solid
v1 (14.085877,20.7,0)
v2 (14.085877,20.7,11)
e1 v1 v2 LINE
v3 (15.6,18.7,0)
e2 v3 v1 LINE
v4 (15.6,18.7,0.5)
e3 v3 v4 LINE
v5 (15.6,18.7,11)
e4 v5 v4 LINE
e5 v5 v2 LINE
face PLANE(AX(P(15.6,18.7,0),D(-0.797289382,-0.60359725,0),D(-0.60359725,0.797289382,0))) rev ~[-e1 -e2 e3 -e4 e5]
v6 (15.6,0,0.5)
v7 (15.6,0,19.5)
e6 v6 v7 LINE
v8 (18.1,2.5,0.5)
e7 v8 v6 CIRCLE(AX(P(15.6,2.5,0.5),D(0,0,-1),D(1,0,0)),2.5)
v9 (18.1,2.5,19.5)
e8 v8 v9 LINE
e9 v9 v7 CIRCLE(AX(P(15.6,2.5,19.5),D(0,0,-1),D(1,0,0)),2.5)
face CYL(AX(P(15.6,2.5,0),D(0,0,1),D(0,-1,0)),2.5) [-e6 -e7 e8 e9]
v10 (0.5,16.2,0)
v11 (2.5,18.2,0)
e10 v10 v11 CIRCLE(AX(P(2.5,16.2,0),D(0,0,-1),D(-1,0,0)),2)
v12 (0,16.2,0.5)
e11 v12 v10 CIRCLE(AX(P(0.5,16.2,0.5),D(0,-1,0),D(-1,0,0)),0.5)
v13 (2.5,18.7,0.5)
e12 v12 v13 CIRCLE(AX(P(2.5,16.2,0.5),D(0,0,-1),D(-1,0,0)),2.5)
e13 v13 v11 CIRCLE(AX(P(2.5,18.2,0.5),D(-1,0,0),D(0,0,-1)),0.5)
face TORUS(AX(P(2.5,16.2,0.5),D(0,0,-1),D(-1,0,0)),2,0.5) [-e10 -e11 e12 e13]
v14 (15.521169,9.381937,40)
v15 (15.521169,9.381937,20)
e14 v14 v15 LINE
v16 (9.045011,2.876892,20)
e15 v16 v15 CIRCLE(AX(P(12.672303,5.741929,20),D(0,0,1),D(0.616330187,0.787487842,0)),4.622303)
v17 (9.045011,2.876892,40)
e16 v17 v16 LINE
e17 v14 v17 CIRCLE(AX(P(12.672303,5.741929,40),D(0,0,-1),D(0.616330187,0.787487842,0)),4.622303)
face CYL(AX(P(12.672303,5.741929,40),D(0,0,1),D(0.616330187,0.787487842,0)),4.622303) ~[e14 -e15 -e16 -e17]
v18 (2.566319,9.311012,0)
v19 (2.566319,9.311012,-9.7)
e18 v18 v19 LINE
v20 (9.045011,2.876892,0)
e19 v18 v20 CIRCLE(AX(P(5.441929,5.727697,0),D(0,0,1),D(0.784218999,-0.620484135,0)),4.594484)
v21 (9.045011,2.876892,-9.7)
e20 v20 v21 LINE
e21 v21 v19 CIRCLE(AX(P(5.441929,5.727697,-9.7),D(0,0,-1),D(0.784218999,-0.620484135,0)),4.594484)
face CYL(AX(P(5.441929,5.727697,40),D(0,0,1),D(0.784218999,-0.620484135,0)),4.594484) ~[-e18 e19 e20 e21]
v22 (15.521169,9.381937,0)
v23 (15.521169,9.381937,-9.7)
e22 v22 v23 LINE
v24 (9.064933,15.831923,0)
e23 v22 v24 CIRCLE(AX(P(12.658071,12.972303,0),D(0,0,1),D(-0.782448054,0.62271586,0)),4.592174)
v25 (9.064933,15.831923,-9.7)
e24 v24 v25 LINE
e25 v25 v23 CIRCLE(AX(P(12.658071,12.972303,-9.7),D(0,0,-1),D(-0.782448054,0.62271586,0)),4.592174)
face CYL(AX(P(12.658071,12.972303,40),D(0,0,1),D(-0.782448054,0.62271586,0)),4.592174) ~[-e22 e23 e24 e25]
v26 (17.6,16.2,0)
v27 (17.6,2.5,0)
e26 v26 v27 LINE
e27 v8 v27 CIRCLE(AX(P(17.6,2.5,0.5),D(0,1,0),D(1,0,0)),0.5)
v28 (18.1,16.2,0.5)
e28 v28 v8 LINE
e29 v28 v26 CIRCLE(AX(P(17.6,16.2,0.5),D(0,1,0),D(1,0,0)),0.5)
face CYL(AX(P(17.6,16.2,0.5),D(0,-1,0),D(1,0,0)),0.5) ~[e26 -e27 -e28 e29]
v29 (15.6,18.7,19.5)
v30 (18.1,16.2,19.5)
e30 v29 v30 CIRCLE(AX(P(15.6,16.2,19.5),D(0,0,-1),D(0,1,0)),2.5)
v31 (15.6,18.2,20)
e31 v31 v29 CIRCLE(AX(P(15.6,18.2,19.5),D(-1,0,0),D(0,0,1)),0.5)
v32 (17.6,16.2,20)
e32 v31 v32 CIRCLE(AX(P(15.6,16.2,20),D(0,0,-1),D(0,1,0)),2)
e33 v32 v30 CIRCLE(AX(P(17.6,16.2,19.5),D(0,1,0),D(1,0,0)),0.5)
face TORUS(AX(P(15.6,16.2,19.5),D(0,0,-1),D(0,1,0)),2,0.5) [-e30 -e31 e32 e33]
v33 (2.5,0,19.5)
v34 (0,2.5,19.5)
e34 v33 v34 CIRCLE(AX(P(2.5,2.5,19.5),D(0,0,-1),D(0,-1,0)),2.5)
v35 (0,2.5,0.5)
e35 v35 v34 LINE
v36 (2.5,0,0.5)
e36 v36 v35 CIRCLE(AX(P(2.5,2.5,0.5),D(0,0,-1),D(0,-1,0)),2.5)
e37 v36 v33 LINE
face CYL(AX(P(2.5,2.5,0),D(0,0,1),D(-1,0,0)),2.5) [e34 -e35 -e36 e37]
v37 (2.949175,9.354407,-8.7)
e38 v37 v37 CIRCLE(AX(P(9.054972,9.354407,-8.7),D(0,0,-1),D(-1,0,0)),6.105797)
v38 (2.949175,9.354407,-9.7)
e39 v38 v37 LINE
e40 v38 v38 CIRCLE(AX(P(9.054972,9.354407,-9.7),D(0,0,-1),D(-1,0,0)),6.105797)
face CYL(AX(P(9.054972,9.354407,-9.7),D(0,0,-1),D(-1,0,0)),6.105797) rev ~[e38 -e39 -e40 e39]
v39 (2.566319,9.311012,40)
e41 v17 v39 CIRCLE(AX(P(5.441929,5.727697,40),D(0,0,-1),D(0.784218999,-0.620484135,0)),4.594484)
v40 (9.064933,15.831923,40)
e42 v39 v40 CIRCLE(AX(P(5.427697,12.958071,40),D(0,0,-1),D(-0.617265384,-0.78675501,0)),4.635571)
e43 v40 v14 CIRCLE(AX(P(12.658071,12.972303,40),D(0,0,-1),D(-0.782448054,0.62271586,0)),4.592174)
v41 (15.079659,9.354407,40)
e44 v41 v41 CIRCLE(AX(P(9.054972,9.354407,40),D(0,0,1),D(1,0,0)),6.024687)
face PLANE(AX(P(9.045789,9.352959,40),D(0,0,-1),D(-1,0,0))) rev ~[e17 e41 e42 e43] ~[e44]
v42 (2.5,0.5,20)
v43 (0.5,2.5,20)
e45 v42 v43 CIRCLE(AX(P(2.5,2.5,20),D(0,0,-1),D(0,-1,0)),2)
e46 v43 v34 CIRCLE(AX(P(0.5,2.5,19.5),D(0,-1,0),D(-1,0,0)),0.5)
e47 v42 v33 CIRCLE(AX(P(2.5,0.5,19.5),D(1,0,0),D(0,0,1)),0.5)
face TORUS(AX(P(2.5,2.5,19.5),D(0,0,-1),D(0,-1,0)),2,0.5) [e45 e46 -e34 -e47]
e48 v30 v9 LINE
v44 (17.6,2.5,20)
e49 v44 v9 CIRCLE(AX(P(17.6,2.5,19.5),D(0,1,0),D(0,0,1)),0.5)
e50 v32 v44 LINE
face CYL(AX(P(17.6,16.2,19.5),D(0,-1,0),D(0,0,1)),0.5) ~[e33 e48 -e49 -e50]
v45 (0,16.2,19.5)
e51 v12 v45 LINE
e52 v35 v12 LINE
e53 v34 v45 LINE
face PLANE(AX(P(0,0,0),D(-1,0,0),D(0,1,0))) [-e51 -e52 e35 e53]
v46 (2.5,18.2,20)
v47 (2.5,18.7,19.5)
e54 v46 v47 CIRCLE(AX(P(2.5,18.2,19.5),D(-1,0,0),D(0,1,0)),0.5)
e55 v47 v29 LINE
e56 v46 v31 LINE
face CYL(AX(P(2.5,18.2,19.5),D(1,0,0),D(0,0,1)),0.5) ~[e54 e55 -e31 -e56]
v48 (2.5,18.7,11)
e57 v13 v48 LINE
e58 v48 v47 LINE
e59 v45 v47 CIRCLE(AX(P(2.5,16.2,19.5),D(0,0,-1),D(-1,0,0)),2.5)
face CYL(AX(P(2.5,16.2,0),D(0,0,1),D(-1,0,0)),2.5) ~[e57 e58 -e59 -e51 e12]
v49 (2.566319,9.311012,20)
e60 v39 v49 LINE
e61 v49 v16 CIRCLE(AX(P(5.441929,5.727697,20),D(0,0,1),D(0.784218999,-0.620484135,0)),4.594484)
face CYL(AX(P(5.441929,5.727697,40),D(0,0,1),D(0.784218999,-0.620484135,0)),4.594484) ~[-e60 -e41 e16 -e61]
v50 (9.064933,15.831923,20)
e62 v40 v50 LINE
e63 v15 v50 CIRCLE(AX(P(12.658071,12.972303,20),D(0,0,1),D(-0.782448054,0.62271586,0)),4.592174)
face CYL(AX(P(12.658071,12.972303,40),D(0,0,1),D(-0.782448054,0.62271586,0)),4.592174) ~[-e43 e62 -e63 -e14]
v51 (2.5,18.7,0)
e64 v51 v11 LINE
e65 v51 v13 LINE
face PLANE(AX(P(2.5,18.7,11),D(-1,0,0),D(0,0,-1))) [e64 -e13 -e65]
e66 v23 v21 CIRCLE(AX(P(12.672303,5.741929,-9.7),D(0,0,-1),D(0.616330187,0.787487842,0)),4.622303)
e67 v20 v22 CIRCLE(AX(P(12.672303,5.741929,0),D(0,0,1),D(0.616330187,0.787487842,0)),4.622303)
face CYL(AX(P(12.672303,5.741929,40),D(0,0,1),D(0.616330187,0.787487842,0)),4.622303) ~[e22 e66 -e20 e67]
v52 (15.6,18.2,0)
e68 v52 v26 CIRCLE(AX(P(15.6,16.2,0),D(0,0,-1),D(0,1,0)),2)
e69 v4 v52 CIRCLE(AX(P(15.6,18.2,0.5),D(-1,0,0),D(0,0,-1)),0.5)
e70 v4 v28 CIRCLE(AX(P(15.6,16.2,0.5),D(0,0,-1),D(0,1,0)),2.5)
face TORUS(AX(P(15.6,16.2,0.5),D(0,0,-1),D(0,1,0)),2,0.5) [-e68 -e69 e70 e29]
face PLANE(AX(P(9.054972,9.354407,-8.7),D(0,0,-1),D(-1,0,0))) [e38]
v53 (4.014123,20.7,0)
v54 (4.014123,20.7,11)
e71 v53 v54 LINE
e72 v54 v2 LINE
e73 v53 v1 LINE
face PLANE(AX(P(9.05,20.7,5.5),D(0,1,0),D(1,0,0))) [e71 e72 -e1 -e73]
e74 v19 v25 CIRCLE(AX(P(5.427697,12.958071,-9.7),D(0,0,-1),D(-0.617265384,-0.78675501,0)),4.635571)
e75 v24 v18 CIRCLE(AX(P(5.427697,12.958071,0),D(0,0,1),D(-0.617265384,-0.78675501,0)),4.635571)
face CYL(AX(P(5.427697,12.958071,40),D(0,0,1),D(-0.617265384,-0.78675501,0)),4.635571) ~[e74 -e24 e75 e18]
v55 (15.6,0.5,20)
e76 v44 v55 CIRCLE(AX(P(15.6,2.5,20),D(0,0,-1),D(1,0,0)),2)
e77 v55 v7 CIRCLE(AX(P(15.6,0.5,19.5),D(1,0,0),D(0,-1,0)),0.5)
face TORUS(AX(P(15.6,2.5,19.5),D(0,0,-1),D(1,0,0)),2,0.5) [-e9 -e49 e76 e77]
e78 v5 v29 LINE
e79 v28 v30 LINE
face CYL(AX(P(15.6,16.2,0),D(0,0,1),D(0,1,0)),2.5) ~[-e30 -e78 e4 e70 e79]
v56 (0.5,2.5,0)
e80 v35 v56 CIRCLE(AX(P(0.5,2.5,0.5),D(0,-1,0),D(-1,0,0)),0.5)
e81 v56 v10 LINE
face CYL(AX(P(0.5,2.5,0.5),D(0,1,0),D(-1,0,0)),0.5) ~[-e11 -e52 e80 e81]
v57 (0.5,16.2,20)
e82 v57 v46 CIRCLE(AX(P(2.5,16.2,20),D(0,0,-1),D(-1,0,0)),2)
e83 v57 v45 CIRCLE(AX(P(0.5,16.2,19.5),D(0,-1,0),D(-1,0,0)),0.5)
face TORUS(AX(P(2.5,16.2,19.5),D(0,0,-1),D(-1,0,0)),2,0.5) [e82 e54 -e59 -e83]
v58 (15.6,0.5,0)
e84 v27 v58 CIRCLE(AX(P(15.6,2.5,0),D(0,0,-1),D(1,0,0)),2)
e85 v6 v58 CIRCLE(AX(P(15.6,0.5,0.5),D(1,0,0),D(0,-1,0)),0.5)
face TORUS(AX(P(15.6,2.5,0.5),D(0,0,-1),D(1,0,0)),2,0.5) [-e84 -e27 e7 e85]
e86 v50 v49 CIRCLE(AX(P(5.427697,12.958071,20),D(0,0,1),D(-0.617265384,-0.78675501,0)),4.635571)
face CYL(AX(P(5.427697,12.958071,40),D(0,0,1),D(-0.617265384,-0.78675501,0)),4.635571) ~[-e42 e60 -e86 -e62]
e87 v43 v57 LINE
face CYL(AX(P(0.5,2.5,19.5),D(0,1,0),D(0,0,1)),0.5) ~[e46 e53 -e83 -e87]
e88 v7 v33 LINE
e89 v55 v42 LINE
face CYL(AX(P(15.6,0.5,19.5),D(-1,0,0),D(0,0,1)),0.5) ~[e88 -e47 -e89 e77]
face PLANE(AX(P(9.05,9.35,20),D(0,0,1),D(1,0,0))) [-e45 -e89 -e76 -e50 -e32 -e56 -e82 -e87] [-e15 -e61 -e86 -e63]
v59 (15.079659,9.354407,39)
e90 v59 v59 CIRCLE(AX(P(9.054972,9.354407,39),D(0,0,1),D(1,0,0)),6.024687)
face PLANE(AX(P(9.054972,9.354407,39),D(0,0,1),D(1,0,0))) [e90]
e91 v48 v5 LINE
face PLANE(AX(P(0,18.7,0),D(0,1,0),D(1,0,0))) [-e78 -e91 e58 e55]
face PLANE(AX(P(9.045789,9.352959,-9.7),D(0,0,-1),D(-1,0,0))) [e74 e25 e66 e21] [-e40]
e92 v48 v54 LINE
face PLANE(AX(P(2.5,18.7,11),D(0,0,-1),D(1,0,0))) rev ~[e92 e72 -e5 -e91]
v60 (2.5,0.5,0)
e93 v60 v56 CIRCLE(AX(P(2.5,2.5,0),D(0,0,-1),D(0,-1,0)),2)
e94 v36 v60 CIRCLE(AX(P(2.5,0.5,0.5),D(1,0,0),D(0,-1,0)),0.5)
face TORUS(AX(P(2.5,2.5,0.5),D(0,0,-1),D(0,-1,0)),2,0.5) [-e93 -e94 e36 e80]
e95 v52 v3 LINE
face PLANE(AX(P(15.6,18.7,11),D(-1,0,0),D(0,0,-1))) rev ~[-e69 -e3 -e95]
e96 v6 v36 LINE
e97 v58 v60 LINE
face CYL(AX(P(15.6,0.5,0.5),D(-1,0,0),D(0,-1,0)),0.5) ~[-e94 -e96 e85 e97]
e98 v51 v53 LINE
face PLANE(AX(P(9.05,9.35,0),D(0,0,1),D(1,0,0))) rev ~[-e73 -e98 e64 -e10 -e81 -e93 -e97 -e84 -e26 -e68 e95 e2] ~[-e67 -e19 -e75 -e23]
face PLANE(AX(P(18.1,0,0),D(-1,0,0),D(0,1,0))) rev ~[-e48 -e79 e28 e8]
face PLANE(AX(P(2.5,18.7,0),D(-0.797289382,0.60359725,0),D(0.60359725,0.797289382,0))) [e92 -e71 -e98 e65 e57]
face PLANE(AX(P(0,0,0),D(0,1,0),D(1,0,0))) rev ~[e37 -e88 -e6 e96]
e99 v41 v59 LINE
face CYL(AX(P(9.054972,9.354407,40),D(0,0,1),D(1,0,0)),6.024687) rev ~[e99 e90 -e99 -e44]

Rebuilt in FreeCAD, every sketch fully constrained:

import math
import FreeCAD as App
import Part
import Sketcher


def edges_at(feature, points):
    """Names of the edges that pass closest to the given points."""
    edges = feature.Shape.Edges
    near = lambda p: min(range(len(edges)), key=lambda i: edges[i].distToShape(Part.Vertex(*p))[0])
    return sorted({f"Edge{near(p) + 1}" for p in points})


def add_polygon(sketch, points):
    """Adds a closed chain of lines whose ends are joined by coincident constraints."""
    first, n = sketch.GeometryCount, len(points)
    for a, b in zip(points, points[1:] + points[:1]):
        sketch.addGeometry(Part.LineSegment(App.Vector(*a, 0), App.Vector(*b, 0)), False)
    for i in range(n):
        sketch.addConstraint(Sketcher.Constraint("Coincident", first + i, 2, first + (i + 1) % n, 1))

doc = App.newDocument("Part")
body = doc.addObject("PartDesign::Body", "Body")

sketch1 = body.newObject("Sketcher::SketchObject", "Sketch")
sketch1.AttachmentSupport = (doc.getObject("XY_Plane"), [""])
sketch1.MapMode = "FlatFace"
add_polygon(sketch1, [(0, 19), (0, 0), (18, 0), (18, 19)])
sketch1.addConstraint([
    Sketcher.Constraint("Vertical", 0),
    Sketcher.Constraint("Horizontal", 1),
    Sketcher.Constraint("Vertical", 2),
    Sketcher.Constraint("Horizontal", 3),
    Sketcher.Constraint("Coincident", 0, 2, -1, 1),
    Sketcher.Constraint("DistanceX", 1, 1, 1, 2, 18.1),
    Sketcher.Constraint("DistanceY", 0, 2, 0, 1, 18.7),
])
pad1 = body.newObject("PartDesign::Pad", "Pad")
pad1.Profile = sketch1
pad1.Length = 20

sketch2 = body.newObject("Sketcher::SketchObject", "Sketch001")
sketch2.AttachmentSupport = (doc.getObject("XZ_Plane"), [""])
sketch2.MapMode = "FlatFace"
sketch2.AttachmentOffset = App.Placement(App.Vector(0, 0, -18.7), App.Rotation())
add_polygon(sketch2, [(2, 0), (2, 11), (16, 11), (16, 0)])
sketch2.addConstraint([
    Sketcher.Constraint("Vertical", 0),
    Sketcher.Constraint("Horizontal", 1),
    Sketcher.Constraint("Vertical", 2),
    Sketcher.Constraint("Horizontal", 3),
    Sketcher.Constraint("PointOnObject", 2, 2, -1),
    Sketcher.Constraint("DistanceY", 0, 1, 0, 2, 11.0),
    Sketcher.Constraint("DistanceX", 1, 1, 1, 2, 13.1),
    Sketcher.Constraint("DistanceX", -1, 1, 0, 2, 2.5),
])
pad2 = body.newObject("PartDesign::Pad", "Pad001")
pad2.Profile = sketch2
pad2.Length = 2
pad2.Reversed = True

sketch3 = body.newObject("Sketcher::SketchObject", "Sketch002")
sketch3.AttachmentSupport = (doc.getObject("XY_Plane"), [""])
sketch3.MapMode = "FlatFace"
sketch3.addGeometry([
    Part.ArcOfCircle(Part.Circle(App.Vector(5.4, 13, 0), App.Vector(0, 0, 1), 4.6), math.radians(38), math.radians(232)),
    Part.ArcOfCircle(Part.Circle(App.Vector(12.7, 13, 0), App.Vector(0, 0, 1), 4.6), math.radians(-51), math.radians(141)),
    Part.ArcOfCircle(Part.Circle(App.Vector(12.7, 5.7, 0), App.Vector(0, 0, 1), 4.6), math.radians(-142), math.radians(52)),
    Part.ArcOfCircle(Part.Circle(App.Vector(5.4, 5.7, 0), App.Vector(0, 0, 1), 4.6), math.radians(129), math.radians(322)),
], False)
sketch3.addConstraint([
    Sketcher.Constraint("Coincident", 0, 1, 1, 2),
    Sketcher.Constraint("Coincident", 1, 1, 2, 2),
    Sketcher.Constraint("Coincident", 2, 1, 3, 2),
    Sketcher.Constraint("Coincident", 3, 1, 0, 2),
    Sketcher.Constraint("Radius", 0, 4.635571),
    Sketcher.Constraint("Radius", 1, 4.592174),
    Sketcher.Constraint("Radius", 2, 4.622303),
    Sketcher.Constraint("Radius", 3, 4.594484),
    Sketcher.Constraint("DistanceY", -1, 1, 0, 3, 12.958071),
    Sketcher.Constraint("DistanceX", -1, 1, 1, 3, 12.658071),
    Sketcher.Constraint("DistanceY", -1, 1, 2, 3, 5.741929),
    Sketcher.Constraint("DistanceX", -1, 1, 3, 3, 5.441929),
    Sketcher.Constraint("DistanceX", -1, 1, 1, 1, 15.521169),
    Sketcher.Constraint("DistanceX", -1, 1, 2, 1, 9.045011),
    Sketcher.Constraint("DistanceY", -1, 1, 2, 1, 2.876892),
    Sketcher.Constraint("DistanceX", -1, 1, 3, 1, 2.566319),
])
pad3 = body.newObject("PartDesign::Pad", "Pad002")
pad3.Profile = sketch3
pad3.Type = "TwoLengths"
pad3.Length = 9.7
pad3.Length2 = 40
pad3.Reversed = True
doc.recompute()

fillet = body.newObject("PartDesign::Fillet", "Fillet")
fillet.Base = (pad3, edges_at(pad3, [
    (0, 0, 10),
    (18.1, 0, 10),
    (18.1, 18.7, 10),
    (0, 18.7, 10),
]))
fillet.Radius = 2.5
doc.recompute()

fillet2 = body.newObject("PartDesign::Fillet", "Fillet001")
fillet2.Base = (fillet, edges_at(fillet, [
    (0.732, 17.968, 20),
    (9.05, 18.7, 20),
    (17.368, 17.968, 20),
    (18.1, 9.35, 20),
    (17.368, 0.732, 20),
    (9.05, 0, 20),
    (0.732, 0.732, 20),
    (17.368, 17.968, 0),
    (18.1, 9.35, 0),
    (17.368, 0.732, 0),
    (9.05, 0, 0),
    (0.732, 0.732, 0),
    (0, 9.35, 0),
    (0, 9.35, 20),
    (0.732, 17.968, 0),
]))
fillet2.Radius = 0.5

sketch4 = body.newObject("Sketcher::SketchObject", "Sketch003")
sketch4.AttachmentSupport = (doc.getObject("XY_Plane"), [""])
sketch4.MapMode = "FlatFace"
add_polygon(sketch4, [(15.6, 18.7), (14.1, 20.7), (15.6, 20.7)])
add_polygon(sketch4, [(2.5, 18.7), (2.5, 20.7), (4, 20.7)])
sketch4.addConstraint([
    Sketcher.Constraint("Horizontal", 1),
    Sketcher.Constraint("Vertical", 2),
    Sketcher.Constraint("Vertical", 3),
    Sketcher.Constraint("Horizontal", 4),
    Sketcher.Constraint("Horizontal", 1, 2, 3, 2),
    Sketcher.Constraint("Horizontal", 2, 2, 5, 2),
    Sketcher.Constraint("Equal", 1, 4),
    Sketcher.Constraint("DistanceY", 2, 2, 2, 1, 2.0),
    Sketcher.Constraint("DistanceY", -1, 1, 0, 2, 20.7),
    Sketcher.Constraint("DistanceX", -1, 1, 1, 2, 15.6),
    Sketcher.Constraint("DistanceX", -1, 1, 3, 2, 2.5),
    Sketcher.Constraint("Distance", 0, 2.508499),
])
pocket1 = body.newObject("PartDesign::Pocket", "Pocket")
pocket1.Profile = sketch4
pocket1.Type = "ThroughAll"
pocket1.Reversed = True

sketch5 = body.newObject("Sketcher::SketchObject", "Sketch004")
sketch5.AttachmentSupport = (doc.getObject("XY_Plane"), [""])
sketch5.MapMode = "FlatFace"
sketch5.AttachmentOffset = App.Placement(App.Vector(0, 0, -9.7), App.Rotation())
sketch5.addGeometry(Part.Circle(App.Vector(9, 9, 0), App.Vector(0, 0, 1), 6), False)
sketch5.addConstraint([
    Sketcher.Constraint("Diameter", 0, 12.211595),
    Sketcher.Constraint("DistanceX", -1, 1, 0, 3, 9.054972),
    Sketcher.Constraint("DistanceY", -1, 1, 0, 3, 9.354407),
])
pocket2 = body.newObject("PartDesign::Pocket", "Pocket001")
pocket2.Profile = sketch5
pocket2.Length = 1
pocket2.Reversed = True

sketch6 = body.newObject("Sketcher::SketchObject", "Sketch005")
sketch6.AttachmentSupport = (doc.getObject("XY_Plane"), [""])
sketch6.MapMode = "FlatFace"
sketch6.AttachmentOffset = App.Placement(App.Vector(0, 0, 40), App.Rotation())
sketch6.addGeometry(Part.Circle(App.Vector(9, 9, 0), App.Vector(0, 0, 1), 6), False)
sketch6.addConstraint([
    Sketcher.Constraint("Diameter", 0, 12.049373),
    Sketcher.Constraint("DistanceX", -1, 1, 0, 3, 9.054972),
    Sketcher.Constraint("DistanceY", -1, 1, 0, 3, 9.354407),
])
pocket3 = body.newObject("PartDesign::Pocket", "Pocket002")
pocket3.Profile = sketch6
pocket3.Length = 1

doc.recompute()
